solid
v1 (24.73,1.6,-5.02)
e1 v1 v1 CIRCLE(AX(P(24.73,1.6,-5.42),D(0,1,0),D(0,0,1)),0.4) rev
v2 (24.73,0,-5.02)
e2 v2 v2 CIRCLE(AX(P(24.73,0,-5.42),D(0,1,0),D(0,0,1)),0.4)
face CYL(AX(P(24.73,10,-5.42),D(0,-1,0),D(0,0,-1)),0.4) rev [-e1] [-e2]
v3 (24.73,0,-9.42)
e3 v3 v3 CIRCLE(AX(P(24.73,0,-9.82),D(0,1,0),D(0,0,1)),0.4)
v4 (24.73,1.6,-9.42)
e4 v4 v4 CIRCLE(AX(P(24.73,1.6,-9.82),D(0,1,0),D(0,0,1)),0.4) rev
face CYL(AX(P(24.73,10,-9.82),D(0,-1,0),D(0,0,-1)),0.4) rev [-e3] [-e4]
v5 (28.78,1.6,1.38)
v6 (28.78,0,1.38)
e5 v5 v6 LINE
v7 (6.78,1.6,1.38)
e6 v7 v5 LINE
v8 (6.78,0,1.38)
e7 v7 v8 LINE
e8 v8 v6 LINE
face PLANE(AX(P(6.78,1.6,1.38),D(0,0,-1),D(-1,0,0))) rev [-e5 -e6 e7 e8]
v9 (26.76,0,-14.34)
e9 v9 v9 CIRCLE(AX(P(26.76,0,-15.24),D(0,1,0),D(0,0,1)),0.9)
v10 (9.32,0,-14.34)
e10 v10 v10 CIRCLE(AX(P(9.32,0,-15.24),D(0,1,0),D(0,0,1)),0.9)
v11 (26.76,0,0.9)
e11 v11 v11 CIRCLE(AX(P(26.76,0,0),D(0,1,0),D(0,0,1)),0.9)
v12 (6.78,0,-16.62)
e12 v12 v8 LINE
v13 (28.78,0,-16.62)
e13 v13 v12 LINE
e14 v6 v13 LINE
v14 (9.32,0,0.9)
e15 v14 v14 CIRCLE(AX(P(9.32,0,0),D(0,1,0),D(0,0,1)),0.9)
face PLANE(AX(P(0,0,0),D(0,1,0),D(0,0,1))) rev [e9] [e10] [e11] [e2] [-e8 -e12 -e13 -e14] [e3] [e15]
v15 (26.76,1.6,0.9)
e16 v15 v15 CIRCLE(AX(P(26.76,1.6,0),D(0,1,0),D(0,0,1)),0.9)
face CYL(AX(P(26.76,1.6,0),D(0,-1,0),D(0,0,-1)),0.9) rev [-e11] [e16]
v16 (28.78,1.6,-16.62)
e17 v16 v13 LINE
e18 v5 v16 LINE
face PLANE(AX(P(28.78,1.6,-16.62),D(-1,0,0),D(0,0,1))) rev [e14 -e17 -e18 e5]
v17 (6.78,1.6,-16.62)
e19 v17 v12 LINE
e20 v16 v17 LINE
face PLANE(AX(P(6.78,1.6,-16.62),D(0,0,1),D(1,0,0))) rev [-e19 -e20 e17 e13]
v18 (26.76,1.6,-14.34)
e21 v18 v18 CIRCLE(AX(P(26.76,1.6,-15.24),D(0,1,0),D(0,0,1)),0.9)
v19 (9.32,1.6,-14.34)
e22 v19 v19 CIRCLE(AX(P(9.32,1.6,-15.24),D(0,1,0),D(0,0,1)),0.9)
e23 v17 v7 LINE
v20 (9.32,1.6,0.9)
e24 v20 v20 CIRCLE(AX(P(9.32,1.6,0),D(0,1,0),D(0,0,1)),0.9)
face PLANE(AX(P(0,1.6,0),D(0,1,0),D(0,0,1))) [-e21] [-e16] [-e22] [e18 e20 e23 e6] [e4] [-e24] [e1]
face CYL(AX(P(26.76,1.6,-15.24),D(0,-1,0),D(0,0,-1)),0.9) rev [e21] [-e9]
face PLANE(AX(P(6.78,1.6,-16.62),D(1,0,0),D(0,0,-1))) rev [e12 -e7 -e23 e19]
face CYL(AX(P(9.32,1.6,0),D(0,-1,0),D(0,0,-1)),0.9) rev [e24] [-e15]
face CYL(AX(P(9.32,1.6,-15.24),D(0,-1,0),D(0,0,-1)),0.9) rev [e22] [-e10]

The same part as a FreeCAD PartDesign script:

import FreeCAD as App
import Part
import Sketcher
from FreeCAD import Vector


def add_polygon(sketch, points):
    """Adds a closed chain of lines whose ends are joined by coincident constraints."""
    first, n = sketch.GeometryCount, len(points)
    for a, b in zip(points, points[1:] + points[:1]):
        sketch.addGeometry(Part.LineSegment(App.Vector(*a, 0), App.Vector(*b, 0)), False)
    for i in range(n):
        sketch.addConstraint(Sketcher.Constraint("Coincident", first + i, 2, first + (i + 1) % n, 1))

doc = App.newDocument("Part")
body = doc.addObject("PartDesign::Body", "Body")

sketch1 = body.newObject("Sketcher::SketchObject", "Sketch")
sketch1.AttachmentSupport = (doc.getObject("XZ_Plane"), [""])
sketch1.MapMode = "FlatFace"
add_polygon(sketch1, [(7, -17), (7, 1), (29, 1), (29, -17)])
sketch1.addConstraint([
    Sketcher.Constraint("Vertical", 0),
    Sketcher.Constraint("Horizontal", 1),
    Sketcher.Constraint("Vertical", 2),
    Sketcher.Constraint("Horizontal", 3),
    Sketcher.Constraint("DistanceX", 1, 1, 1, 2, 22.0),
    Sketcher.Constraint("DistanceY", 0, 1, 0, 2, 18.0),
    Sketcher.Constraint("DistanceX", -1, 1, 0, 2, 6.78),
    Sketcher.Constraint("DistanceY", -1, 1, 0, 2, 1.38),
])
pad1 = body.newObject("PartDesign::Pad", "Pad")
pad1.Profile = sketch1
pad1.Length = 1.6
pad1.Reversed = True

sketch2 = body.newObject("Sketcher::SketchObject", "Sketch001")
sketch2.AttachmentSupport = (doc.getObject("XZ_Plane"), [""])
sketch2.MapMode = "FlatFace"
sketch2.addGeometry([
    Part.Circle(Vector(26.8, -15.2, 0), Vector(0, 0, 1), 0.9),
    Part.Circle(Vector(26.8, 0, 0), Vector(0, 0, 1), 0.9),
    Part.Circle(Vector(9.3, 0, 0), Vector(0, 0, 1), 0.9),
    Part.Circle(Vector(9.3, -15.2, 0), Vector(0, 0, 1), 0.9),
], False)
sketch2.addConstraint([
    Sketcher.Constraint("Equal", 0, 1),
    Sketcher.Constraint("Equal", 1, 2),
    Sketcher.Constraint("Equal", 2, 3),
    Sketcher.Constraint("PointOnObject", 1, 3, -1),
    Sketcher.Constraint("PointOnObject", 2, 3, -1),
    Sketcher.Constraint("Horizontal", 0, 3, 3, 3),
    Sketcher.Constraint("Vertical", 0, 3, 1, 3),
    Sketcher.Constraint("Vertical", 2, 3, 3, 3),
    Sketcher.Constraint("Diameter", 0, 1.8),
    Sketcher.Constraint("DistanceX", -1, 1, 0, 3, 26.76),
    Sketcher.Constraint("DistanceY", 0, 3, -1, 1, 15.24),
    Sketcher.Constraint("DistanceX", -1, 1, 2, 3, 9.32),
])
pocket1 = body.newObject("PartDesign::Pocket", "Pocket")
pocket1.Profile = sketch2
pocket1.Length = 1.6

sketch3 = body.newObject("Sketcher::SketchObject", "Sketch002")
sketch3.AttachmentSupport = (doc.getObject("XZ_Plane"), [""])
sketch3.MapMode = "FlatFace"
sketch3.addGeometry([
    Part.Circle(Vector(24.73, -5.42, 0), Vector(0, 0, 1), 0.4),
    Part.Circle(Vector(24.73, -9.82, 0), Vector(0, 0, 1), 0.4),
], False)
sketch3.addConstraint([
    Sketcher.Constraint("Equal", 0, 1),
    Sketcher.Constraint("Vertical", 0, 3, 1, 3),
    Sketcher.Constraint("Diameter", 0, 0.8),
    Sketcher.Constraint("DistanceY", 1, 3, 0, 3, 4.4),
    Sketcher.Constraint("DistanceX", -1, 1, 0, 3, 24.73),
    Sketcher.Constraint("DistanceY", 0, 3, -1, 1, 5.42),
])
pocket2 = body.newObject("PartDesign::Pocket", "Pocket001")
pocket2.Profile = sketch3
pocket2.Length = 10

doc.recompute()
